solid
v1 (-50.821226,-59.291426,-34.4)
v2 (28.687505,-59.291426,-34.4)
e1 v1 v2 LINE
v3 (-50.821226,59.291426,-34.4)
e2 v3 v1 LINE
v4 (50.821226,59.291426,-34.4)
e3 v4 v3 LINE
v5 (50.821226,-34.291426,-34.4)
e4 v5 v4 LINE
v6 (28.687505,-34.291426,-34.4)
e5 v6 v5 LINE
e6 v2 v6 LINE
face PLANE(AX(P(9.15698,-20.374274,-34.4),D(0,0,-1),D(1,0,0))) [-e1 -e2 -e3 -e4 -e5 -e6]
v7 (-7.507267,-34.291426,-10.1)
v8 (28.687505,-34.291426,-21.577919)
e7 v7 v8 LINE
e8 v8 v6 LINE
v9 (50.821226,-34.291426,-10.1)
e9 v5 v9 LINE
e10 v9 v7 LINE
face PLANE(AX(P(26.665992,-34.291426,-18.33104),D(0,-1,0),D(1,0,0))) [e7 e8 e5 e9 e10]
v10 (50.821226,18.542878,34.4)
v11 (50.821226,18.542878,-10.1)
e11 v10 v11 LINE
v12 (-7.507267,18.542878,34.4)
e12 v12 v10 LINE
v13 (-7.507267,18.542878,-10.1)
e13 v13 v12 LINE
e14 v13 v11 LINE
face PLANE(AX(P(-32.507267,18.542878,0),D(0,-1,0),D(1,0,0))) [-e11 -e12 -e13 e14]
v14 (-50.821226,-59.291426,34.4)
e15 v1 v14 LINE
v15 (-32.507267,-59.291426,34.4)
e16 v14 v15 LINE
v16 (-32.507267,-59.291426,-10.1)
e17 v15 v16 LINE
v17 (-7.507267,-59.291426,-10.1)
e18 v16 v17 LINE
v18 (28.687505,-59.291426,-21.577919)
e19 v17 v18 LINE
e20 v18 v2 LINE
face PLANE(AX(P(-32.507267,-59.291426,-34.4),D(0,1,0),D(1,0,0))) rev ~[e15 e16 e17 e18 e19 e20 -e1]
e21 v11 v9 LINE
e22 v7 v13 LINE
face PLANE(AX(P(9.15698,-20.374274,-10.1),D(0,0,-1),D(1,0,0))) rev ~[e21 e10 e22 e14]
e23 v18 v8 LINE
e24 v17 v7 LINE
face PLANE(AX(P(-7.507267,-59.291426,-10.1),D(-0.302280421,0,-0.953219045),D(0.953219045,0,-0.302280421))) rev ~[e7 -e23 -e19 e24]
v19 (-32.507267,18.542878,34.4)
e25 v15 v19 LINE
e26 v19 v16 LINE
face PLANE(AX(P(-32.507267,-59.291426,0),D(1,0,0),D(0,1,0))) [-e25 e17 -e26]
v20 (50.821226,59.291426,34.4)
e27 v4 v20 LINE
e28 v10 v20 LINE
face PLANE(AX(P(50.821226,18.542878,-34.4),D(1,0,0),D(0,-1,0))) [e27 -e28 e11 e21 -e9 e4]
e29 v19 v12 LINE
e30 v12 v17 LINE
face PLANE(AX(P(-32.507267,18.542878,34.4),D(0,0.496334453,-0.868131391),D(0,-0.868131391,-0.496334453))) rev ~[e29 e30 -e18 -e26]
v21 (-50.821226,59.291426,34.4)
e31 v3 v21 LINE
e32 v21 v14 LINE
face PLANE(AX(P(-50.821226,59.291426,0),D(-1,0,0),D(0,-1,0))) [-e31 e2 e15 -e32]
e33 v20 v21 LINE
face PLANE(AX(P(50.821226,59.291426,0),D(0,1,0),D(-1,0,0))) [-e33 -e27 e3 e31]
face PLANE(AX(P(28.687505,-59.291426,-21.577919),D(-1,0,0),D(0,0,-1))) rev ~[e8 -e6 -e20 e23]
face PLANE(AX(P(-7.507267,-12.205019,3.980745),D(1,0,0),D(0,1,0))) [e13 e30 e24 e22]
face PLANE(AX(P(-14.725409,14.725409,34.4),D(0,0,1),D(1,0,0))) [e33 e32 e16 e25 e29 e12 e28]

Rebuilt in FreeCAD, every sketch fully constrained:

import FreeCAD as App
import Part
import Sketcher
Q = App.Units.Quantity


def add_polygon(sketch, points):
    """Adds a closed chain of lines whose ends are joined by coincident constraints."""
    first, n = sketch.GeometryCount, len(points)
    for a, b in zip(points, points[1:] + points[:1]):
        sketch.addGeometry(Part.LineSegment(App.Vector(*a, 0), App.Vector(*b, 0)), False)
    for i in range(n):
        sketch.addConstraint(Sketcher.Constraint("Coincident", first + i, 2, first + (i + 1) % n, 1))

doc = App.newDocument("Part")
body = doc.addObject("PartDesign::Body", "Body")

sketch1 = body.newObject("Sketcher::SketchObject", "Sketch")
sketch1.AttachmentSupport = (doc.getObject("XY_Plane"), [""])
sketch1.MapMode = "FlatFace"
add_polygon(sketch1, [(51, 19), (51, 59), (-51, 59), (-51, -59), (-33, -59), (-33, 19)])
sketch1.addConstraint(Sketcher.Constraint("Vertical", 0))
sketch1.addConstraint(Sketcher.Constraint("Horizontal", 1))
sketch1.addConstraint(Sketcher.Constraint("Vertical", 2))
sketch1.addConstraint(Sketcher.Constraint("Horizontal", 3))
sketch1.addConstraint(Sketcher.Constraint("Vertical", 4))
sketch1.addConstraint(Sketcher.Constraint("Horizontal", 5))
sketch1.addConstraint(Sketcher.Constraint("Symmetric", 0, 2, 2, 2, -1, 1))
sketch1.addConstraint(Sketcher.Constraint("DistanceX", 3, 1, 3, 2, Q("18.313959 mm")))
sketch1.addConstraint(Sketcher.Constraint("DistanceX", 1, 2, 1, 1, Q("101.642452 mm")))
sketch1.addConstraint(Sketcher.Constraint("DistanceY", 0, 1, 0, 2, Q("40.748548 mm")))
sketch1.addConstraint(Sketcher.Constraint("DistanceY", 2, 2, 2, 1, Q("118.582852 mm")))
pad1 = body.newObject("PartDesign::Pad", "Pad")
pad1.Profile = sketch1
pad1.Length = 68.8
pad1.Midplane = True

sketch2 = body.newObject("Sketcher::SketchObject", "Sketch001")
sketch2.AttachmentSupport = (doc.getObject("XY_Plane"), [""])
sketch2.MapMode = "FlatFace"
sketch2.AttachmentOffset = App.Placement(App.Vector(0, 0, -34.4), App.Rotation())
add_polygon(sketch2, [(-33, -59), (-33, 19), (51, 19), (51, -59)])
sketch2.addConstraint(Sketcher.Constraint("Vertical", 0))
sketch2.addConstraint(Sketcher.Constraint("Horizontal", 1))
sketch2.addConstraint(Sketcher.Constraint("Vertical", 2))
sketch2.addConstraint(Sketcher.Constraint("Horizontal", 3))
sketch2.addConstraint(Sketcher.Constraint("DistanceX", 1, 1, 1, 2, Q("83.328493 mm")))
sketch2.addConstraint(Sketcher.Constraint("DistanceY", 0, 1, 0, 2, Q("77.834304 mm")))
sketch2.addConstraint(Sketcher.Constraint("DistanceY", -1, 1, 0, 2, Q("18.542878 mm")))
sketch2.addConstraint(Sketcher.Constraint("DistanceX", 0, 2, -1, 1, Q("32.507267 mm")))
pad2 = body.newObject("PartDesign::Pad", "Pad001")
pad2.Profile = sketch2
pad2.Length = 24.3

sketch3 = body.newObject("Sketcher::SketchObject", "Sketch002")
sketch3.AttachmentSupport = (doc.getObject("YZ_Plane"), [""])
sketch3.MapMode = "FlatFace"
sketch3.AttachmentOffset = App.Placement(App.Vector(0, 0, -32.507267), App.Rotation())
add_polygon(sketch3, [(19, 34), (-59, -10), (19, -10)])
sketch3.addConstraint(Sketcher.Constraint("Horizontal", 1))
sketch3.addConstraint(Sketcher.Constraint("Vertical", 2))
sketch3.addConstraint(Sketcher.Constraint("DistanceY", 2, 1, 2, 2, Q("44.5 mm")))
sketch3.addConstraint(Sketcher.Constraint("DistanceY", 0, 2, -1, 1, Q("10.1 mm")))
sketch3.addConstraint(Sketcher.Constraint("DistanceX", 1, 1, 1, 2, Q("77.834304 mm")))
sketch3.addConstraint(Sketcher.Constraint("DistanceX", -1, 1, 1, 2, Q("18.542878 mm")))
pad3 = body.newObject("PartDesign::Pad", "Pad002")
pad3.Profile = sketch3
pad3.Length = 25

sketch4 = body.newObject("Sketcher::SketchObject", "Sketch003")
sketch4.AttachmentSupport = (doc.getObject("XZ_Plane"), [""])
sketch4.MapMode = "FlatFace"
sketch4.AttachmentOffset = App.Placement(App.Vector(0, 0, 59.291426), App.Rotation())
add_polygon(sketch4, [(51, -10), (-8, -10), (29, -22), (29, -34), (51, -34)])
sketch4.addConstraint(Sketcher.Constraint("Horizontal", 0))
sketch4.addConstraint(Sketcher.Constraint("Vertical", 2))
sketch4.addConstraint(Sketcher.Constraint("Horizontal", 3))
sketch4.addConstraint(Sketcher.Constraint("Vertical", 4))
sketch4.addConstraint(Sketcher.Constraint("DistanceY", 4, 1, 4, 2, Q("24.3 mm")))
sketch4.addConstraint(Sketcher.Constraint("DistanceY", 0, 2, -1, 1, Q("10.1 mm")))
sketch4.addConstraint(Sketcher.Constraint("DistanceX", 3, 1, 3, 2, Q("22.133721 mm")))
sketch4.addConstraint(Sketcher.Constraint("DistanceY", 2, 2, 2, 1, Q("12.822081 mm")))
sketch4.addConstraint(Sketcher.Constraint("DistanceX", 0, 2, 0, 1, Q("58.328493 mm")))
sketch4.addConstraint(Sketcher.Constraint("DistanceX", 0, 2, -1, 1, Q("7.507267 mm")))
pocket1 = body.newObject("PartDesign::Pocket", "Pocket")
pocket1.Profile = sketch4
pocket1.Length = 25

doc.recompute()
